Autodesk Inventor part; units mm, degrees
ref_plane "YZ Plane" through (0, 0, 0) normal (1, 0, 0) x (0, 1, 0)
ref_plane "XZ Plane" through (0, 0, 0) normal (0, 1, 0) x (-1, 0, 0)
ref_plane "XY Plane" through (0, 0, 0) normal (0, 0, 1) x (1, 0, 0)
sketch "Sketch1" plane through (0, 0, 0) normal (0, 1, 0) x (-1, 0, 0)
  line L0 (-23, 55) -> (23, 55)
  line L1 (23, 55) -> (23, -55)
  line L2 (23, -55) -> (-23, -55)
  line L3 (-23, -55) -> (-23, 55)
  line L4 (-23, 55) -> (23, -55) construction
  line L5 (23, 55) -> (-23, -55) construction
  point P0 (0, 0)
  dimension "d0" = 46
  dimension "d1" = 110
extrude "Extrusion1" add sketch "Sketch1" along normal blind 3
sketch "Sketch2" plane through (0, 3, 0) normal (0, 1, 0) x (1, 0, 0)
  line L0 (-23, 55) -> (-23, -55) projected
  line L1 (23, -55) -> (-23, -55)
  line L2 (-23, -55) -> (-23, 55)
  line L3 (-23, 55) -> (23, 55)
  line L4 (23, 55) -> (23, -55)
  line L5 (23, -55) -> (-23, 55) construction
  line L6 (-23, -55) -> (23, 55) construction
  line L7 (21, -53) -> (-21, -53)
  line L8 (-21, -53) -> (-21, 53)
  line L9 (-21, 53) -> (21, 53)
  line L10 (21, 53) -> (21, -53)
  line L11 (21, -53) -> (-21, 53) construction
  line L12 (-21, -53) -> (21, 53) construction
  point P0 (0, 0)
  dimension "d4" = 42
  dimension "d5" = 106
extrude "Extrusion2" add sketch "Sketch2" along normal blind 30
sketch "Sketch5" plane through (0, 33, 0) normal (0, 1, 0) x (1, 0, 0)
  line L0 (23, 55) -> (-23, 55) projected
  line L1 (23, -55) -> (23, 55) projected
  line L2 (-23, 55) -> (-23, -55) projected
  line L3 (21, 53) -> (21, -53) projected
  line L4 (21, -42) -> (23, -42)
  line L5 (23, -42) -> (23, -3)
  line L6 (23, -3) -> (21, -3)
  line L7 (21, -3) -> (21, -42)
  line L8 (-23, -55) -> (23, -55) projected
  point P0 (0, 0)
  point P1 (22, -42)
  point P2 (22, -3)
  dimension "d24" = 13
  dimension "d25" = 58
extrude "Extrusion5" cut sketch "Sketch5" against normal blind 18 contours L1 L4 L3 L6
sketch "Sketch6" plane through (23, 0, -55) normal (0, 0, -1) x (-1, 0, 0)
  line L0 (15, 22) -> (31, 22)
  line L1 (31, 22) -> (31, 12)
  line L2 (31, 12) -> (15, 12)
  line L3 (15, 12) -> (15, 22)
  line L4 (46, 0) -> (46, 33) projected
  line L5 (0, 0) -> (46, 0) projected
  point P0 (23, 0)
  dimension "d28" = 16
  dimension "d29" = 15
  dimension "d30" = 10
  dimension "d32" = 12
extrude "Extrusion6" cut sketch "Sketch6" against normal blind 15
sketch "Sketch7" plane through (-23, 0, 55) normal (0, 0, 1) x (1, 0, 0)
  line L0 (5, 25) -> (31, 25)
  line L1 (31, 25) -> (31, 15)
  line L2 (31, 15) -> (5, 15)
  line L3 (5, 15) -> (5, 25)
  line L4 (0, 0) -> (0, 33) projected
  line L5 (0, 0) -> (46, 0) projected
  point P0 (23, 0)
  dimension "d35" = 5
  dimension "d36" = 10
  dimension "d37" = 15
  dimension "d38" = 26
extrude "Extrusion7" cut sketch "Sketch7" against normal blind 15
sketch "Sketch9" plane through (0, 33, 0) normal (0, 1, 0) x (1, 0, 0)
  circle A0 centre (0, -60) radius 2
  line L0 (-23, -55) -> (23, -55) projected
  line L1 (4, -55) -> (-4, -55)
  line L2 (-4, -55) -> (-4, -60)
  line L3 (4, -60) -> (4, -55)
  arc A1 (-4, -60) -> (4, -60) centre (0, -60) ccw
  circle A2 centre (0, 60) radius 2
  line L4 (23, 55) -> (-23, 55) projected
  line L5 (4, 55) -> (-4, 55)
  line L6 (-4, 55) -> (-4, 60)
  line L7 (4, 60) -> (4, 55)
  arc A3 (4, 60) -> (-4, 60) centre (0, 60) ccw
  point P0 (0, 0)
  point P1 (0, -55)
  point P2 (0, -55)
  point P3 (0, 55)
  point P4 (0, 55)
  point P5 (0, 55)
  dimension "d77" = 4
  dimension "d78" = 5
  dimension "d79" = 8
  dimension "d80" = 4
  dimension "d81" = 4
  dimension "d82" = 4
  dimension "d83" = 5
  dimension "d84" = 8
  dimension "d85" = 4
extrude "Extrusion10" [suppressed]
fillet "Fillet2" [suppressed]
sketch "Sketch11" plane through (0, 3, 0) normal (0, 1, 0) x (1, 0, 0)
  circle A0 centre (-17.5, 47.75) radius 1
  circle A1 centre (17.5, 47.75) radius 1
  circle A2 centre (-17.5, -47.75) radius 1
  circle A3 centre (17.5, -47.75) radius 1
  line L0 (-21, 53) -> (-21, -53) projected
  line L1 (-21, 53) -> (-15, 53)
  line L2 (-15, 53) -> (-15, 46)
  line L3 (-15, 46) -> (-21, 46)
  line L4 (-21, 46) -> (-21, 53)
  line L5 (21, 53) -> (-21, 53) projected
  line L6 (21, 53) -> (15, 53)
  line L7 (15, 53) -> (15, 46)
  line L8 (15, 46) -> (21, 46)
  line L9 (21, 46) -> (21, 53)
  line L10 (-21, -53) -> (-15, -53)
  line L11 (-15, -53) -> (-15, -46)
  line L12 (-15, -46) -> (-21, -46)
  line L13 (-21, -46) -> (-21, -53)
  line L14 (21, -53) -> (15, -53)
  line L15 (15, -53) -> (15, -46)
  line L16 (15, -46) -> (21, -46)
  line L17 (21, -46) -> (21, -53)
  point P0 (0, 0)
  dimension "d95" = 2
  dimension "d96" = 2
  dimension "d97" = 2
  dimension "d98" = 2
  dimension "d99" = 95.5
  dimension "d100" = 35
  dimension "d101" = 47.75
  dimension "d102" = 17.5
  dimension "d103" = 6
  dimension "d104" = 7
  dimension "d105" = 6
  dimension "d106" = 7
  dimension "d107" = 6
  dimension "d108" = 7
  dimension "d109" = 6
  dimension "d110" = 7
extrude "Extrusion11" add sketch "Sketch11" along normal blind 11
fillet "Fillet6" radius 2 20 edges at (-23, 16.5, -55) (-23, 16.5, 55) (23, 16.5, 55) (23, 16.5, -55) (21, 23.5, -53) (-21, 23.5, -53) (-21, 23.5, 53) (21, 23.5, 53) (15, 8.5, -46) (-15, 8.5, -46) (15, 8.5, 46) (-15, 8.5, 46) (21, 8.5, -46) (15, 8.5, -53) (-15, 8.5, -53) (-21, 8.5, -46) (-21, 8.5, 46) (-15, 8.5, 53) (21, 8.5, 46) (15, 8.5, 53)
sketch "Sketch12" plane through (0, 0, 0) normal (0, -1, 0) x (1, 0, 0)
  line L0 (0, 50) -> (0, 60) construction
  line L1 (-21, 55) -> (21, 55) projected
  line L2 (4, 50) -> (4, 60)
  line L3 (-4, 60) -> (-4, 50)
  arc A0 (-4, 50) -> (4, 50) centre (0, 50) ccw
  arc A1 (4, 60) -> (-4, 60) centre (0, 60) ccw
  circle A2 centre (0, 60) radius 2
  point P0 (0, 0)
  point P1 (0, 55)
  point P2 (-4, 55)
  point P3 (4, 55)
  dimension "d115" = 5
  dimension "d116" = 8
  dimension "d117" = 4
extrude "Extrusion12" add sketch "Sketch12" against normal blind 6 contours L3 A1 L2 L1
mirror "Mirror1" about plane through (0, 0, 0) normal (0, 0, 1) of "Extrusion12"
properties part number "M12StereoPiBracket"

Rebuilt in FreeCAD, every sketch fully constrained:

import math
import FreeCAD as App
import Part
import Sketcher


def edges_at(feature, points):
    """Names of the edges that pass closest to the given points."""
    edges = feature.Shape.Edges
    near = lambda p: min(range(len(edges)), key=lambda i: edges[i].distToShape(Part.Vertex(*p))[0])
    return sorted({f"Edge{near(p) + 1}" for p in points})

doc = App.newDocument("Part")
params = doc.addObject("Spreadsheet::Sheet", "Params")
for row, (alias, value) in enumerate([
    ("sketch1_width", "46 mm"),
    ("sketch1_height", "110 mm"),
    ("pad1_length", "3 mm"),
    ("sketch2_width", "42 mm"),
    ("sketch2_height", "106 mm"),
    ("sketch2_width2", "46 mm"),
    ("sketch2_height2", "110 mm"),
    ("pad2_length", "30 mm"),
    ("sketch3_width", "2 mm"),
    ("sketch3_height", "39 mm"),
    ("pocket1_length", "18 mm"),
    ("sketch4_width", "16 mm"),
    ("sketch4_height", "10 mm"),
    ("pocket2_length", "15 mm"),
    ("sketch5_width", "26 mm"),
    ("sketch5_height", "10 mm"),
    ("pocket3_length", "15 mm"),
    ("sketch6_diameter", "2 mm"),
    ("sketch6_width", "6 mm"),
    ("sketch6_height", "7 mm"),
    ("pad3_length", "11 mm"),
    ("fillet_radius", "2 mm"),
    ("sketch7_diameter", "4 mm"),
    ("sketch7_radius", "4 mm"),
    ("sketch7_height", "5 mm"),
    ("pad4_length", "6 mm"),
], start=1):
    params.set(f"A{row}", alias)
    params.set(f"B{row}", "=" + value)
    params.setAlias(f"B{row}", alias)

body = doc.addObject("PartDesign::Body", "Body")

# Sketch on XZ plane
sketch1 = body.newObject("Sketcher::SketchObject", "Sketch")
sketch1.AttachmentSupport = (doc.getObject("XZ_Plane"), [""])
sketch1.MapMode = "FlatFace"
sketch1.addGeometry([
    Part.LineSegment(App.Vector(-23, 55, 0), App.Vector(23, 55, 0)),
    Part.LineSegment(App.Vector(23, 55, 0), App.Vector(23, -55, 0)),
    Part.LineSegment(App.Vector(23, -55, 0), App.Vector(-23, -55, 0)),
    Part.LineSegment(App.Vector(-23, -55, 0), App.Vector(-23, 55, 0)),
], False)
sketch1.addConstraint([
    Sketcher.Constraint("Coincident", 0, 2, 1, 1),
    Sketcher.Constraint("Coincident", 1, 2, 2, 1),
    Sketcher.Constraint("Coincident", 2, 2, 3, 1),
    Sketcher.Constraint("Coincident", 3, 2, 0, 1),
    Sketcher.Constraint("Horizontal", 0),
    Sketcher.Constraint("Vertical", 1),
    Sketcher.Constraint("Horizontal", 2),
    Sketcher.Constraint("Vertical", 3),
    Sketcher.Constraint("Symmetric", 0, 2, 2, 2, -1, 1),
    Sketcher.Constraint("DistanceX", 0, 1, 0, 2, 46.0),
    Sketcher.Constraint("DistanceY", 1, 2, 1, 1, 110.0),
])
sketch1.setExpression("Constraints[9]", "Params.sketch1_width")
sketch1.setExpression("Constraints[10]", "Params.sketch1_height")
pad1 = body.newObject("PartDesign::Pad", "Pad")
pad1.Profile = sketch1
pad1.setExpression("Length", "Params.pad1_length")
pad1.Reversed = True

# Sketch on XZ plane
sketch2 = body.newObject("Sketcher::SketchObject", "Sketch001")
sketch2.AttachmentSupport = (doc.getObject("XZ_Plane"), [""])
sketch2.MapMode = "FlatFace"
sketch2.AttachmentOffset = App.Placement(App.Vector(0, 0, -3), App.Rotation())
sketch2.addGeometry([
    Part.LineSegment(App.Vector(23, -55, 0), App.Vector(-23, -55, 0)),  # 0
    Part.LineSegment(App.Vector(-23, -55, 0), App.Vector(-23, 55, 0)),  # 1
    Part.LineSegment(App.Vector(-23, 55, 0), App.Vector(23, 55, 0)),  # 2
    Part.LineSegment(App.Vector(23, 55, 0), App.Vector(23, -55, 0)),  # 3
    Part.LineSegment(App.Vector(21, -53, 0), App.Vector(21, 53, 0)),  # 4
    Part.LineSegment(App.Vector(21, 53, 0), App.Vector(-21, 53, 0)),  # 5
    Part.LineSegment(App.Vector(-21, 53, 0), App.Vector(-21, -53, 0)),  # 6
    Part.LineSegment(App.Vector(-21, -53, 0), App.Vector(21, -53, 0)),  # 7
], False)
sketch2.addConstraint([
    Sketcher.Constraint("Coincident", 0, 2, 1, 1),
    Sketcher.Constraint("Coincident", 1, 2, 2, 1),
    Sketcher.Constraint("Coincident", 2, 2, 3, 1),
    Sketcher.Constraint("Coincident", 3, 2, 0, 1),
    Sketcher.Constraint("Coincident", 4, 2, 5, 1),
    Sketcher.Constraint("Coincident", 5, 2, 6, 1),
    Sketcher.Constraint("Coincident", 6, 2, 7, 1),
    Sketcher.Constraint("Coincident", 7, 2, 4, 1),
    Sketcher.Constraint("Horizontal", 0),
    Sketcher.Constraint("Vertical", 1),
    Sketcher.Constraint("Horizontal", 2),
    Sketcher.Constraint("Vertical", 3),
    Sketcher.Constraint("Vertical", 4),
    Sketcher.Constraint("Horizontal", 5),
    Sketcher.Constraint("Vertical", 6),
    Sketcher.Constraint("Horizontal", 7),
    Sketcher.Constraint("Symmetric", 0, 2, 2, 2, -1, 1),
    Sketcher.Constraint("Symmetric", 4, 2, 6, 2, -1, 1),
    Sketcher.Constraint("DistanceX", 5, 2, 5, 1, 42.0),
    Sketcher.Constraint("DistanceY", 4, 1, 4, 2, 106.0),
    Sketcher.Constraint("DistanceX", 0, 2, 0, 1, 46.0),
    Sketcher.Constraint("DistanceY", 1, 1, 1, 2, 110.0),
])
sketch2.setExpression("Constraints[18]", "Params.sketch2_width")
sketch2.setExpression("Constraints[19]", "Params.sketch2_height")
sketch2.setExpression("Constraints[20]", "Params.sketch2_width2")
sketch2.setExpression("Constraints[21]", "Params.sketch2_height2")
pad2 = body.newObject("PartDesign::Pad", "Pad001")
pad2.Profile = sketch2
pad2.setExpression("Length", "Params.pad2_length")
pad2.Reversed = True

# Sketch on XZ plane
sketch3 = body.newObject("Sketcher::SketchObject", "Sketch002")
sketch3.AttachmentSupport = (doc.getObject("XZ_Plane"), [""])
sketch3.MapMode = "FlatFace"
sketch3.AttachmentOffset = App.Placement(App.Vector(0, 0, -33), App.Rotation())
sketch3.addGeometry([
    Part.LineSegment(App.Vector(23, 42, 0), App.Vector(23, 3, 0)),
    Part.LineSegment(App.Vector(23, 3, 0), App.Vector(21, 3, 0)),
    Part.LineSegment(App.Vector(21, 3, 0), App.Vector(21, 42, 0)),
    Part.LineSegment(App.Vector(21, 42, 0), App.Vector(23, 42, 0)),
], False)
sketch3.addConstraint([
    Sketcher.Constraint("Coincident", 0, 2, 1, 1),
    Sketcher.Constraint("Coincident", 1, 2, 2, 1),
    Sketcher.Constraint("Coincident", 2, 2, 3, 1),
    Sketcher.Constraint("Coincident", 3, 2, 0, 1),
    Sketcher.Constraint("Vertical", 0),
    Sketcher.Constraint("Horizontal", 1),
    Sketcher.Constraint("Vertical", 2),
    Sketcher.Constraint("Horizontal", 3),
    Sketcher.Constraint("DistanceX", 1, 2, 1, 1, 2.0),
    Sketcher.Constraint("DistanceY", 0, 2, 0, 1, 39.0),
    Sketcher.Constraint("DistanceX", -1, 1, 0, 2, 23.0),
    Sketcher.Constraint("DistanceY", -1, 1, 0, 2, 3.0),
])
sketch3.setExpression("Constraints[8]", "Params.sketch3_width")
sketch3.setExpression("Constraints[9]", "Params.sketch3_height")
pocket1 = body.newObject("PartDesign::Pocket", "Pocket")
pocket1.Profile = sketch3
pocket1.setExpression("Length", "Params.pocket1_length")
pocket1.Reversed = True

# Sketch on XY plane
sketch4 = body.newObject("Sketcher::SketchObject", "Sketch003")
sketch4.AttachmentSupport = (doc.getObject("XY_Plane"), [""])
sketch4.MapMode = "FlatFace"
sketch4.AttachmentOffset = App.Placement(App.Vector(0, 0, -55), App.Rotation())
sketch4.addGeometry([
    Part.LineSegment(App.Vector(-8, 22, 0), App.Vector(8, 22, 0)),
    Part.LineSegment(App.Vector(8, 22, 0), App.Vector(8, 12, 0)),
    Part.LineSegment(App.Vector(8, 12, 0), App.Vector(-8, 12, 0)),
    Part.LineSegment(App.Vector(-8, 12, 0), App.Vector(-8, 22, 0)),
], False)
sketch4.addConstraint([
    Sketcher.Constraint("Coincident", 0, 2, 1, 1),
    Sketcher.Constraint("Coincident", 1, 2, 2, 1),
    Sketcher.Constraint("Coincident", 2, 2, 3, 1),
    Sketcher.Constraint("Coincident", 3, 2, 0, 1),
    Sketcher.Constraint("Horizontal", 0),
    Sketcher.Constraint("Vertical", 1),
    Sketcher.Constraint("Horizontal", 2),
    Sketcher.Constraint("Vertical", 3),
    Sketcher.Constraint("DistanceX", 0, 1, 0, 2, 16.0),
    Sketcher.Constraint("DistanceY", 1, 2, 1, 1, 10.0),
    Sketcher.Constraint("DistanceY", -1, 1, 1, 2, 12.0),
    Sketcher.Constraint("DistanceX", -1, 1, 0, 2, 8.0),
])
sketch4.setExpression("Constraints[8]", "Params.sketch4_width")
sketch4.setExpression("Constraints[9]", "Params.sketch4_height")
pocket2 = body.newObject("PartDesign::Pocket", "Pocket001")
pocket2.Profile = sketch4
pocket2.setExpression("Length", "Params.pocket2_length")
pocket2.Reversed = True

# Sketch on XY plane
sketch5 = body.newObject("Sketcher::SketchObject", "Sketch004")
sketch5.AttachmentSupport = (doc.getObject("XY_Plane"), [""])
sketch5.MapMode = "FlatFace"
sketch5.AttachmentOffset = App.Placement(App.Vector(0, 0, 55), App.Rotation())
sketch5.addGeometry([
    Part.LineSegment(App.Vector(8, 25, 0), App.Vector(-18, 25, 0)),
    Part.LineSegment(App.Vector(-18, 25, 0), App.Vector(-18, 15, 0)),
    Part.LineSegment(App.Vector(-18, 15, 0), App.Vector(8, 15, 0)),
    Part.LineSegment(App.Vector(8, 15, 0), App.Vector(8, 25, 0)),
], False)
sketch5.addConstraint([
    Sketcher.Constraint("Coincident", 0, 2, 1, 1),
    Sketcher.Constraint("Coincident", 1, 2, 2, 1),
    Sketcher.Constraint("Coincident", 2, 2, 3, 1),
    Sketcher.Constraint("Coincident", 3, 2, 0, 1),
    Sketcher.Constraint("Horizontal", 0),
    Sketcher.Constraint("Vertical", 1),
    Sketcher.Constraint("Horizontal", 2),
    Sketcher.Constraint("Vertical", 3),
    Sketcher.Constraint("DistanceX", 0, 2, 0, 1, 26.0),
    Sketcher.Constraint("DistanceY", 1, 2, 1, 1, 10.0),
    Sketcher.Constraint("DistanceY", -1, 1, 1, 2, 15.0),
    Sketcher.Constraint("DistanceX", 0, 2, -1, 1, 18.0),
])
sketch5.setExpression("Constraints[8]", "Params.sketch5_width")
sketch5.setExpression("Constraints[9]", "Params.sketch5_height")
pocket3 = body.newObject("PartDesign::Pocket", "Pocket002")
pocket3.Profile = sketch5
pocket3.setExpression("Length", "Params.pocket3_length")

# Sketch on XZ plane
sketch6 = body.newObject("Sketcher::SketchObject", "Sketch005")
sketch6.AttachmentSupport = (doc.getObject("XZ_Plane"), [""])
sketch6.MapMode = "FlatFace"
sketch6.AttachmentOffset = App.Placement(App.Vector(0, 0, -3), App.Rotation())
sketch6.addGeometry([
    Part.LineSegment(App.Vector(-15, -53, 0), App.Vector(-21, -53, 0)),  # 0
    Part.LineSegment(App.Vector(-21, -53, 0), App.Vector(-21, -46, 0)),  # 1
    Part.LineSegment(App.Vector(-21, -46, 0), App.Vector(-15, -46, 0)),  # 2
    Part.LineSegment(App.Vector(-15, -46, 0), App.Vector(-15, -53, 0)),  # 3
    Part.Circle(App.Vector(-17.5, -47.75, 0), App.Vector(0, 0, 1), 1),  # 4
    Part.LineSegment(App.Vector(21, -53, 0), App.Vector(15, -53, 0)),  # 5
    Part.LineSegment(App.Vector(15, -53, 0), App.Vector(15, -46, 0)),  # 6
    Part.LineSegment(App.Vector(15, -46, 0), App.Vector(21, -46, 0)),  # 7
    Part.LineSegment(App.Vector(21, -46, 0), App.Vector(21, -53, 0)),  # 8
    Part.Circle(App.Vector(17.5, -47.75, 0), App.Vector(0, 0, 1), 1),  # 9
    Part.LineSegment(App.Vector(-15, 46, 0), App.Vector(-21, 46, 0)),  # 10
    Part.LineSegment(App.Vector(-21, 46, 0), App.Vector(-21, 53, 0)),  # 11
    Part.LineSegment(App.Vector(-21, 53, 0), App.Vector(-15, 53, 0)),  # 12
    Part.LineSegment(App.Vector(-15, 53, 0), App.Vector(-15, 46, 0)),  # 13
    Part.Circle(App.Vector(-17.5, 47.75, 0), App.Vector(0, 0, 1), 1),  # 14
    Part.LineSegment(App.Vector(15, 53, 0), App.Vector(21, 53, 0)),  # 15
    Part.LineSegment(App.Vector(21, 53, 0), App.Vector(21, 46, 0)),  # 16
    Part.LineSegment(App.Vector(21, 46, 0), App.Vector(15, 46, 0)),  # 17
    Part.LineSegment(App.Vector(15, 46, 0), App.Vector(15, 53, 0)),  # 18
    Part.Circle(App.Vector(17.5, 47.75, 0), App.Vector(0, 0, 1), 1),  # 19
], False)
sketch6.addConstraint([
    Sketcher.Constraint("Coincident", 0, 2, 1, 1),
    Sketcher.Constraint("Coincident", 1, 2, 2, 1),
    Sketcher.Constraint("Coincident", 2, 2, 3, 1),
    Sketcher.Constraint("Coincident", 3, 2, 0, 1),
    Sketcher.Constraint("Coincident", 5, 2, 6, 1),
    Sketcher.Constraint("Coincident", 6, 2, 7, 1),
    Sketcher.Constraint("Coincident", 7, 2, 8, 1),
    Sketcher.Constraint("Coincident", 8, 2, 5, 1),
    Sketcher.Constraint("Coincident", 10, 2, 11, 1),
    Sketcher.Constraint("Coincident", 11, 2, 12, 1),
    Sketcher.Constraint("Coincident", 12, 2, 13, 1),
    Sketcher.Constraint("Coincident", 13, 2, 10, 1),
    Sketcher.Constraint("Coincident", 15, 2, 16, 1),
    Sketcher.Constraint("Coincident", 16, 2, 17, 1),
    Sketcher.Constraint("Coincident", 17, 2, 18, 1),
    Sketcher.Constraint("Coincident", 18, 2, 15, 1),
    Sketcher.Constraint("Horizontal", 0),
    Sketcher.Constraint("Vertical", 1),
    Sketcher.Constraint("Horizontal", 2),
    Sketcher.Constraint("Vertical", 3),
    Sketcher.Constraint("Horizontal", 5),
    Sketcher.Constraint("Vertical", 6),
    Sketcher.Constraint("Horizontal", 7),
    Sketcher.Constraint("Vertical", 8),
    Sketcher.Constraint("Horizontal", 10),
    Sketcher.Constraint("Vertical", 11),
    Sketcher.Constraint("Horizontal", 12),
    Sketcher.Constraint("Vertical", 13),
    Sketcher.Constraint("Horizontal", 15),
    Sketcher.Constraint("Vertical", 16),
    Sketcher.Constraint("Horizontal", 17),
    Sketcher.Constraint("Vertical", 18),
    Sketcher.Constraint("Equal", 4, 9),
    Sketcher.Constraint("Equal", 9, 14),
    Sketcher.Constraint("Equal", 14, 19),
    Sketcher.Constraint("Symmetric", 9, 3, 14, 3, -1, 1),
    Sketcher.Constraint("Symmetric", 4, 3, 19, 3, -1, 1),
    Sketcher.Constraint("Symmetric", 7, 2, 10, 2, -1, 1),
    Sketcher.Constraint("Symmetric", 5, 2, 12, 2, -1, 1),
    Sketcher.Constraint("Symmetric", 0, 2, 15, 2, -1, 1),
    Sketcher.Constraint("Symmetric", 2, 2, 17, 2, -1, 1),
    Sketcher.Constraint("Symmetric", 4, 3, 9, 3, -2),
    Sketcher.Constraint("Symmetric", 3, 2, 5, 2, -2),
    Sketcher.Constraint("Symmetric", 1, 2, 7, 2, -2),
    Sketcher.Constraint("Diameter", 4, 2.0),
    Sketcher.Constraint("DistanceX", 0, 2, 0, 1, 6.0),
    Sketcher.Constraint("DistanceY", 1, 1, 1, 2, 7.0),
    Sketcher.Constraint("DistanceX", 4, 3, 9, 3, 35.0),
    Sketcher.Constraint("DistanceY", 4, 3, 14, 3, 95.5),
    Sketcher.Constraint("DistanceX", 0, 2, -1, 1, 21.0),
    Sketcher.Constraint("DistanceY", 0, 2, -1, 1, 53.0),
])
sketch6.setExpression("Constraints[44]", "Params.sketch6_diameter")
sketch6.setExpression("Constraints[45]", "Params.sketch6_width")
sketch6.setExpression("Constraints[46]", "Params.sketch6_height")
pad3 = body.newObject("PartDesign::Pad", "Pad002")
pad3.Profile = sketch6
pad3.setExpression("Length", "Params.pad3_length")
pad3.Reversed = True
doc.recompute()

fillet = body.newObject("PartDesign::Fillet", "Fillet")
fillet.Base = (pad3, edges_at(pad3, [
    (-23, 16.5, -55),
    (-23, 16.5, 55),
    (23, 16.5, 55),
    (23, 16.5, -55),
    (21, 23.5, -53),
    (-21, 23.5, -53),
    (-21, 23.5, 53),
    (21, 23.5, 53),
    (15, 8.5, -46),
    (-15, 8.5, -46),
    (15, 8.5, 46),
    (-15, 8.5, 46),
    (21, 8.5, -46),
    (15, 8.5, -53),
    (-15, 8.5, -53),
    (-21, 8.5, -46),
    (-21, 8.5, 46),
    (-15, 8.5, 53),
    (21, 8.5, 46),
    (15, 8.5, 53),
]))
fillet.setExpression("Radius", "Params.fillet_radius")

# Sketch on XZ plane
sketch7 = body.newObject("Sketcher::SketchObject", "Sketch006")
sketch7.AttachmentSupport = (doc.getObject("XZ_Plane"), [""])
sketch7.MapMode = "FlatFace"
sketch7.addGeometry([
    Part.LineSegment(App.Vector(-4, 60, 0), App.Vector(-4, 55, 0)),  # 0
    Part.LineSegment(App.Vector(-4, 55, 0), App.Vector(4, 55, 0)),  # 1
    Part.LineSegment(App.Vector(4, 55, 0), App.Vector(4, 60, 0)),  # 2
    Part.ArcOfCircle(Part.Circle(App.Vector(0, 60, 0), App.Vector(0, 0, 1), 4), math.radians(0), math.radians(180)),  # 3
    Part.Circle(App.Vector(0, 60, 0), App.Vector(0, 0, 1), 2),  # 4
], False)
sketch7.addConstraint([
    Sketcher.Constraint("Coincident", 0, 2, 1, 1),
    Sketcher.Constraint("Coincident", 1, 2, 2, 1),
    Sketcher.Constraint("Tangent", 2, 2, 3, 1),
    Sketcher.Constraint("Tangent", 3, 2, 0, 1),
    Sketcher.Constraint("Vertical", 0),
    Sketcher.Constraint("Horizontal", 1),
    Sketcher.Constraint("Vertical", 2),
    Sketcher.Constraint("Coincident", 4, 3, 3, 3),
    Sketcher.Constraint("PointOnObject", 3, 3, -2),
    Sketcher.Constraint("Diameter", 4, 4.0),
    Sketcher.Constraint("Radius", 3, 4.0),
    Sketcher.Constraint("DistanceY", 0, 2, 0, 1, 5.0),
    Sketcher.Constraint("DistanceY", -1, 1, 3, 3, 60.0),
])
sketch7.setExpression("Constraints[9]", "Params.sketch7_diameter")
sketch7.setExpression("Constraints[10]", "Params.sketch7_radius")
sketch7.setExpression("Constraints[11]", "Params.sketch7_height")
pad4 = body.newObject("PartDesign::Pad", "Pad003")
pad4.Profile = sketch7
pad4.setExpression("Length", "Params.pad4_length")
pad4.Reversed = True
doc.recompute()

mirrored = body.newObject("PartDesign::Mirrored", "Mirrored")
mirrored.Originals = [pad4]
mirrored.MirrorPlane = (doc.getObject("XY_Plane"), [""])
body.Tip = mirrored

doc.recompute()
